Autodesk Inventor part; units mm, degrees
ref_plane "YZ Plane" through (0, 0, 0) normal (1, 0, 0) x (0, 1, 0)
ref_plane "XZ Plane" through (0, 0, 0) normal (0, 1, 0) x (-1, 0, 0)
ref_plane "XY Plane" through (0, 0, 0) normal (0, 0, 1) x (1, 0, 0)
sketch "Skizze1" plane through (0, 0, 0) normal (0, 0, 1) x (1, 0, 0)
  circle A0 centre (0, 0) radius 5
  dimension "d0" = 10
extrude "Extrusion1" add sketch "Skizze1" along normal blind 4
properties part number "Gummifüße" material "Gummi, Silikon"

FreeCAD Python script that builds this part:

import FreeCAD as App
import Part
import Sketcher

doc = App.newDocument("Part")
body = doc.addObject("PartDesign::Body", "Body")

# Sketch on XY plane
sketch1 = body.newObject("Sketcher::SketchObject", "Sketch")
sketch1.AttachmentSupport = (doc.getObject("XY_Plane"), [""])
sketch1.MapMode = "FlatFace"
sketch1.addGeometry(Part.Circle(App.Vector(0, 0, 0), App.Vector(0, 0, 1), 5), False)
sketch1.addConstraint([
    Sketcher.Constraint("Coincident", 0, 3, -1, 1),
    Sketcher.Constraint("Diameter", 0, 10.0),
])
pad1 = body.newObject("PartDesign::Pad", "Pad")
pad1.Profile = sketch1
pad1.Length = 4

doc.recompute()
